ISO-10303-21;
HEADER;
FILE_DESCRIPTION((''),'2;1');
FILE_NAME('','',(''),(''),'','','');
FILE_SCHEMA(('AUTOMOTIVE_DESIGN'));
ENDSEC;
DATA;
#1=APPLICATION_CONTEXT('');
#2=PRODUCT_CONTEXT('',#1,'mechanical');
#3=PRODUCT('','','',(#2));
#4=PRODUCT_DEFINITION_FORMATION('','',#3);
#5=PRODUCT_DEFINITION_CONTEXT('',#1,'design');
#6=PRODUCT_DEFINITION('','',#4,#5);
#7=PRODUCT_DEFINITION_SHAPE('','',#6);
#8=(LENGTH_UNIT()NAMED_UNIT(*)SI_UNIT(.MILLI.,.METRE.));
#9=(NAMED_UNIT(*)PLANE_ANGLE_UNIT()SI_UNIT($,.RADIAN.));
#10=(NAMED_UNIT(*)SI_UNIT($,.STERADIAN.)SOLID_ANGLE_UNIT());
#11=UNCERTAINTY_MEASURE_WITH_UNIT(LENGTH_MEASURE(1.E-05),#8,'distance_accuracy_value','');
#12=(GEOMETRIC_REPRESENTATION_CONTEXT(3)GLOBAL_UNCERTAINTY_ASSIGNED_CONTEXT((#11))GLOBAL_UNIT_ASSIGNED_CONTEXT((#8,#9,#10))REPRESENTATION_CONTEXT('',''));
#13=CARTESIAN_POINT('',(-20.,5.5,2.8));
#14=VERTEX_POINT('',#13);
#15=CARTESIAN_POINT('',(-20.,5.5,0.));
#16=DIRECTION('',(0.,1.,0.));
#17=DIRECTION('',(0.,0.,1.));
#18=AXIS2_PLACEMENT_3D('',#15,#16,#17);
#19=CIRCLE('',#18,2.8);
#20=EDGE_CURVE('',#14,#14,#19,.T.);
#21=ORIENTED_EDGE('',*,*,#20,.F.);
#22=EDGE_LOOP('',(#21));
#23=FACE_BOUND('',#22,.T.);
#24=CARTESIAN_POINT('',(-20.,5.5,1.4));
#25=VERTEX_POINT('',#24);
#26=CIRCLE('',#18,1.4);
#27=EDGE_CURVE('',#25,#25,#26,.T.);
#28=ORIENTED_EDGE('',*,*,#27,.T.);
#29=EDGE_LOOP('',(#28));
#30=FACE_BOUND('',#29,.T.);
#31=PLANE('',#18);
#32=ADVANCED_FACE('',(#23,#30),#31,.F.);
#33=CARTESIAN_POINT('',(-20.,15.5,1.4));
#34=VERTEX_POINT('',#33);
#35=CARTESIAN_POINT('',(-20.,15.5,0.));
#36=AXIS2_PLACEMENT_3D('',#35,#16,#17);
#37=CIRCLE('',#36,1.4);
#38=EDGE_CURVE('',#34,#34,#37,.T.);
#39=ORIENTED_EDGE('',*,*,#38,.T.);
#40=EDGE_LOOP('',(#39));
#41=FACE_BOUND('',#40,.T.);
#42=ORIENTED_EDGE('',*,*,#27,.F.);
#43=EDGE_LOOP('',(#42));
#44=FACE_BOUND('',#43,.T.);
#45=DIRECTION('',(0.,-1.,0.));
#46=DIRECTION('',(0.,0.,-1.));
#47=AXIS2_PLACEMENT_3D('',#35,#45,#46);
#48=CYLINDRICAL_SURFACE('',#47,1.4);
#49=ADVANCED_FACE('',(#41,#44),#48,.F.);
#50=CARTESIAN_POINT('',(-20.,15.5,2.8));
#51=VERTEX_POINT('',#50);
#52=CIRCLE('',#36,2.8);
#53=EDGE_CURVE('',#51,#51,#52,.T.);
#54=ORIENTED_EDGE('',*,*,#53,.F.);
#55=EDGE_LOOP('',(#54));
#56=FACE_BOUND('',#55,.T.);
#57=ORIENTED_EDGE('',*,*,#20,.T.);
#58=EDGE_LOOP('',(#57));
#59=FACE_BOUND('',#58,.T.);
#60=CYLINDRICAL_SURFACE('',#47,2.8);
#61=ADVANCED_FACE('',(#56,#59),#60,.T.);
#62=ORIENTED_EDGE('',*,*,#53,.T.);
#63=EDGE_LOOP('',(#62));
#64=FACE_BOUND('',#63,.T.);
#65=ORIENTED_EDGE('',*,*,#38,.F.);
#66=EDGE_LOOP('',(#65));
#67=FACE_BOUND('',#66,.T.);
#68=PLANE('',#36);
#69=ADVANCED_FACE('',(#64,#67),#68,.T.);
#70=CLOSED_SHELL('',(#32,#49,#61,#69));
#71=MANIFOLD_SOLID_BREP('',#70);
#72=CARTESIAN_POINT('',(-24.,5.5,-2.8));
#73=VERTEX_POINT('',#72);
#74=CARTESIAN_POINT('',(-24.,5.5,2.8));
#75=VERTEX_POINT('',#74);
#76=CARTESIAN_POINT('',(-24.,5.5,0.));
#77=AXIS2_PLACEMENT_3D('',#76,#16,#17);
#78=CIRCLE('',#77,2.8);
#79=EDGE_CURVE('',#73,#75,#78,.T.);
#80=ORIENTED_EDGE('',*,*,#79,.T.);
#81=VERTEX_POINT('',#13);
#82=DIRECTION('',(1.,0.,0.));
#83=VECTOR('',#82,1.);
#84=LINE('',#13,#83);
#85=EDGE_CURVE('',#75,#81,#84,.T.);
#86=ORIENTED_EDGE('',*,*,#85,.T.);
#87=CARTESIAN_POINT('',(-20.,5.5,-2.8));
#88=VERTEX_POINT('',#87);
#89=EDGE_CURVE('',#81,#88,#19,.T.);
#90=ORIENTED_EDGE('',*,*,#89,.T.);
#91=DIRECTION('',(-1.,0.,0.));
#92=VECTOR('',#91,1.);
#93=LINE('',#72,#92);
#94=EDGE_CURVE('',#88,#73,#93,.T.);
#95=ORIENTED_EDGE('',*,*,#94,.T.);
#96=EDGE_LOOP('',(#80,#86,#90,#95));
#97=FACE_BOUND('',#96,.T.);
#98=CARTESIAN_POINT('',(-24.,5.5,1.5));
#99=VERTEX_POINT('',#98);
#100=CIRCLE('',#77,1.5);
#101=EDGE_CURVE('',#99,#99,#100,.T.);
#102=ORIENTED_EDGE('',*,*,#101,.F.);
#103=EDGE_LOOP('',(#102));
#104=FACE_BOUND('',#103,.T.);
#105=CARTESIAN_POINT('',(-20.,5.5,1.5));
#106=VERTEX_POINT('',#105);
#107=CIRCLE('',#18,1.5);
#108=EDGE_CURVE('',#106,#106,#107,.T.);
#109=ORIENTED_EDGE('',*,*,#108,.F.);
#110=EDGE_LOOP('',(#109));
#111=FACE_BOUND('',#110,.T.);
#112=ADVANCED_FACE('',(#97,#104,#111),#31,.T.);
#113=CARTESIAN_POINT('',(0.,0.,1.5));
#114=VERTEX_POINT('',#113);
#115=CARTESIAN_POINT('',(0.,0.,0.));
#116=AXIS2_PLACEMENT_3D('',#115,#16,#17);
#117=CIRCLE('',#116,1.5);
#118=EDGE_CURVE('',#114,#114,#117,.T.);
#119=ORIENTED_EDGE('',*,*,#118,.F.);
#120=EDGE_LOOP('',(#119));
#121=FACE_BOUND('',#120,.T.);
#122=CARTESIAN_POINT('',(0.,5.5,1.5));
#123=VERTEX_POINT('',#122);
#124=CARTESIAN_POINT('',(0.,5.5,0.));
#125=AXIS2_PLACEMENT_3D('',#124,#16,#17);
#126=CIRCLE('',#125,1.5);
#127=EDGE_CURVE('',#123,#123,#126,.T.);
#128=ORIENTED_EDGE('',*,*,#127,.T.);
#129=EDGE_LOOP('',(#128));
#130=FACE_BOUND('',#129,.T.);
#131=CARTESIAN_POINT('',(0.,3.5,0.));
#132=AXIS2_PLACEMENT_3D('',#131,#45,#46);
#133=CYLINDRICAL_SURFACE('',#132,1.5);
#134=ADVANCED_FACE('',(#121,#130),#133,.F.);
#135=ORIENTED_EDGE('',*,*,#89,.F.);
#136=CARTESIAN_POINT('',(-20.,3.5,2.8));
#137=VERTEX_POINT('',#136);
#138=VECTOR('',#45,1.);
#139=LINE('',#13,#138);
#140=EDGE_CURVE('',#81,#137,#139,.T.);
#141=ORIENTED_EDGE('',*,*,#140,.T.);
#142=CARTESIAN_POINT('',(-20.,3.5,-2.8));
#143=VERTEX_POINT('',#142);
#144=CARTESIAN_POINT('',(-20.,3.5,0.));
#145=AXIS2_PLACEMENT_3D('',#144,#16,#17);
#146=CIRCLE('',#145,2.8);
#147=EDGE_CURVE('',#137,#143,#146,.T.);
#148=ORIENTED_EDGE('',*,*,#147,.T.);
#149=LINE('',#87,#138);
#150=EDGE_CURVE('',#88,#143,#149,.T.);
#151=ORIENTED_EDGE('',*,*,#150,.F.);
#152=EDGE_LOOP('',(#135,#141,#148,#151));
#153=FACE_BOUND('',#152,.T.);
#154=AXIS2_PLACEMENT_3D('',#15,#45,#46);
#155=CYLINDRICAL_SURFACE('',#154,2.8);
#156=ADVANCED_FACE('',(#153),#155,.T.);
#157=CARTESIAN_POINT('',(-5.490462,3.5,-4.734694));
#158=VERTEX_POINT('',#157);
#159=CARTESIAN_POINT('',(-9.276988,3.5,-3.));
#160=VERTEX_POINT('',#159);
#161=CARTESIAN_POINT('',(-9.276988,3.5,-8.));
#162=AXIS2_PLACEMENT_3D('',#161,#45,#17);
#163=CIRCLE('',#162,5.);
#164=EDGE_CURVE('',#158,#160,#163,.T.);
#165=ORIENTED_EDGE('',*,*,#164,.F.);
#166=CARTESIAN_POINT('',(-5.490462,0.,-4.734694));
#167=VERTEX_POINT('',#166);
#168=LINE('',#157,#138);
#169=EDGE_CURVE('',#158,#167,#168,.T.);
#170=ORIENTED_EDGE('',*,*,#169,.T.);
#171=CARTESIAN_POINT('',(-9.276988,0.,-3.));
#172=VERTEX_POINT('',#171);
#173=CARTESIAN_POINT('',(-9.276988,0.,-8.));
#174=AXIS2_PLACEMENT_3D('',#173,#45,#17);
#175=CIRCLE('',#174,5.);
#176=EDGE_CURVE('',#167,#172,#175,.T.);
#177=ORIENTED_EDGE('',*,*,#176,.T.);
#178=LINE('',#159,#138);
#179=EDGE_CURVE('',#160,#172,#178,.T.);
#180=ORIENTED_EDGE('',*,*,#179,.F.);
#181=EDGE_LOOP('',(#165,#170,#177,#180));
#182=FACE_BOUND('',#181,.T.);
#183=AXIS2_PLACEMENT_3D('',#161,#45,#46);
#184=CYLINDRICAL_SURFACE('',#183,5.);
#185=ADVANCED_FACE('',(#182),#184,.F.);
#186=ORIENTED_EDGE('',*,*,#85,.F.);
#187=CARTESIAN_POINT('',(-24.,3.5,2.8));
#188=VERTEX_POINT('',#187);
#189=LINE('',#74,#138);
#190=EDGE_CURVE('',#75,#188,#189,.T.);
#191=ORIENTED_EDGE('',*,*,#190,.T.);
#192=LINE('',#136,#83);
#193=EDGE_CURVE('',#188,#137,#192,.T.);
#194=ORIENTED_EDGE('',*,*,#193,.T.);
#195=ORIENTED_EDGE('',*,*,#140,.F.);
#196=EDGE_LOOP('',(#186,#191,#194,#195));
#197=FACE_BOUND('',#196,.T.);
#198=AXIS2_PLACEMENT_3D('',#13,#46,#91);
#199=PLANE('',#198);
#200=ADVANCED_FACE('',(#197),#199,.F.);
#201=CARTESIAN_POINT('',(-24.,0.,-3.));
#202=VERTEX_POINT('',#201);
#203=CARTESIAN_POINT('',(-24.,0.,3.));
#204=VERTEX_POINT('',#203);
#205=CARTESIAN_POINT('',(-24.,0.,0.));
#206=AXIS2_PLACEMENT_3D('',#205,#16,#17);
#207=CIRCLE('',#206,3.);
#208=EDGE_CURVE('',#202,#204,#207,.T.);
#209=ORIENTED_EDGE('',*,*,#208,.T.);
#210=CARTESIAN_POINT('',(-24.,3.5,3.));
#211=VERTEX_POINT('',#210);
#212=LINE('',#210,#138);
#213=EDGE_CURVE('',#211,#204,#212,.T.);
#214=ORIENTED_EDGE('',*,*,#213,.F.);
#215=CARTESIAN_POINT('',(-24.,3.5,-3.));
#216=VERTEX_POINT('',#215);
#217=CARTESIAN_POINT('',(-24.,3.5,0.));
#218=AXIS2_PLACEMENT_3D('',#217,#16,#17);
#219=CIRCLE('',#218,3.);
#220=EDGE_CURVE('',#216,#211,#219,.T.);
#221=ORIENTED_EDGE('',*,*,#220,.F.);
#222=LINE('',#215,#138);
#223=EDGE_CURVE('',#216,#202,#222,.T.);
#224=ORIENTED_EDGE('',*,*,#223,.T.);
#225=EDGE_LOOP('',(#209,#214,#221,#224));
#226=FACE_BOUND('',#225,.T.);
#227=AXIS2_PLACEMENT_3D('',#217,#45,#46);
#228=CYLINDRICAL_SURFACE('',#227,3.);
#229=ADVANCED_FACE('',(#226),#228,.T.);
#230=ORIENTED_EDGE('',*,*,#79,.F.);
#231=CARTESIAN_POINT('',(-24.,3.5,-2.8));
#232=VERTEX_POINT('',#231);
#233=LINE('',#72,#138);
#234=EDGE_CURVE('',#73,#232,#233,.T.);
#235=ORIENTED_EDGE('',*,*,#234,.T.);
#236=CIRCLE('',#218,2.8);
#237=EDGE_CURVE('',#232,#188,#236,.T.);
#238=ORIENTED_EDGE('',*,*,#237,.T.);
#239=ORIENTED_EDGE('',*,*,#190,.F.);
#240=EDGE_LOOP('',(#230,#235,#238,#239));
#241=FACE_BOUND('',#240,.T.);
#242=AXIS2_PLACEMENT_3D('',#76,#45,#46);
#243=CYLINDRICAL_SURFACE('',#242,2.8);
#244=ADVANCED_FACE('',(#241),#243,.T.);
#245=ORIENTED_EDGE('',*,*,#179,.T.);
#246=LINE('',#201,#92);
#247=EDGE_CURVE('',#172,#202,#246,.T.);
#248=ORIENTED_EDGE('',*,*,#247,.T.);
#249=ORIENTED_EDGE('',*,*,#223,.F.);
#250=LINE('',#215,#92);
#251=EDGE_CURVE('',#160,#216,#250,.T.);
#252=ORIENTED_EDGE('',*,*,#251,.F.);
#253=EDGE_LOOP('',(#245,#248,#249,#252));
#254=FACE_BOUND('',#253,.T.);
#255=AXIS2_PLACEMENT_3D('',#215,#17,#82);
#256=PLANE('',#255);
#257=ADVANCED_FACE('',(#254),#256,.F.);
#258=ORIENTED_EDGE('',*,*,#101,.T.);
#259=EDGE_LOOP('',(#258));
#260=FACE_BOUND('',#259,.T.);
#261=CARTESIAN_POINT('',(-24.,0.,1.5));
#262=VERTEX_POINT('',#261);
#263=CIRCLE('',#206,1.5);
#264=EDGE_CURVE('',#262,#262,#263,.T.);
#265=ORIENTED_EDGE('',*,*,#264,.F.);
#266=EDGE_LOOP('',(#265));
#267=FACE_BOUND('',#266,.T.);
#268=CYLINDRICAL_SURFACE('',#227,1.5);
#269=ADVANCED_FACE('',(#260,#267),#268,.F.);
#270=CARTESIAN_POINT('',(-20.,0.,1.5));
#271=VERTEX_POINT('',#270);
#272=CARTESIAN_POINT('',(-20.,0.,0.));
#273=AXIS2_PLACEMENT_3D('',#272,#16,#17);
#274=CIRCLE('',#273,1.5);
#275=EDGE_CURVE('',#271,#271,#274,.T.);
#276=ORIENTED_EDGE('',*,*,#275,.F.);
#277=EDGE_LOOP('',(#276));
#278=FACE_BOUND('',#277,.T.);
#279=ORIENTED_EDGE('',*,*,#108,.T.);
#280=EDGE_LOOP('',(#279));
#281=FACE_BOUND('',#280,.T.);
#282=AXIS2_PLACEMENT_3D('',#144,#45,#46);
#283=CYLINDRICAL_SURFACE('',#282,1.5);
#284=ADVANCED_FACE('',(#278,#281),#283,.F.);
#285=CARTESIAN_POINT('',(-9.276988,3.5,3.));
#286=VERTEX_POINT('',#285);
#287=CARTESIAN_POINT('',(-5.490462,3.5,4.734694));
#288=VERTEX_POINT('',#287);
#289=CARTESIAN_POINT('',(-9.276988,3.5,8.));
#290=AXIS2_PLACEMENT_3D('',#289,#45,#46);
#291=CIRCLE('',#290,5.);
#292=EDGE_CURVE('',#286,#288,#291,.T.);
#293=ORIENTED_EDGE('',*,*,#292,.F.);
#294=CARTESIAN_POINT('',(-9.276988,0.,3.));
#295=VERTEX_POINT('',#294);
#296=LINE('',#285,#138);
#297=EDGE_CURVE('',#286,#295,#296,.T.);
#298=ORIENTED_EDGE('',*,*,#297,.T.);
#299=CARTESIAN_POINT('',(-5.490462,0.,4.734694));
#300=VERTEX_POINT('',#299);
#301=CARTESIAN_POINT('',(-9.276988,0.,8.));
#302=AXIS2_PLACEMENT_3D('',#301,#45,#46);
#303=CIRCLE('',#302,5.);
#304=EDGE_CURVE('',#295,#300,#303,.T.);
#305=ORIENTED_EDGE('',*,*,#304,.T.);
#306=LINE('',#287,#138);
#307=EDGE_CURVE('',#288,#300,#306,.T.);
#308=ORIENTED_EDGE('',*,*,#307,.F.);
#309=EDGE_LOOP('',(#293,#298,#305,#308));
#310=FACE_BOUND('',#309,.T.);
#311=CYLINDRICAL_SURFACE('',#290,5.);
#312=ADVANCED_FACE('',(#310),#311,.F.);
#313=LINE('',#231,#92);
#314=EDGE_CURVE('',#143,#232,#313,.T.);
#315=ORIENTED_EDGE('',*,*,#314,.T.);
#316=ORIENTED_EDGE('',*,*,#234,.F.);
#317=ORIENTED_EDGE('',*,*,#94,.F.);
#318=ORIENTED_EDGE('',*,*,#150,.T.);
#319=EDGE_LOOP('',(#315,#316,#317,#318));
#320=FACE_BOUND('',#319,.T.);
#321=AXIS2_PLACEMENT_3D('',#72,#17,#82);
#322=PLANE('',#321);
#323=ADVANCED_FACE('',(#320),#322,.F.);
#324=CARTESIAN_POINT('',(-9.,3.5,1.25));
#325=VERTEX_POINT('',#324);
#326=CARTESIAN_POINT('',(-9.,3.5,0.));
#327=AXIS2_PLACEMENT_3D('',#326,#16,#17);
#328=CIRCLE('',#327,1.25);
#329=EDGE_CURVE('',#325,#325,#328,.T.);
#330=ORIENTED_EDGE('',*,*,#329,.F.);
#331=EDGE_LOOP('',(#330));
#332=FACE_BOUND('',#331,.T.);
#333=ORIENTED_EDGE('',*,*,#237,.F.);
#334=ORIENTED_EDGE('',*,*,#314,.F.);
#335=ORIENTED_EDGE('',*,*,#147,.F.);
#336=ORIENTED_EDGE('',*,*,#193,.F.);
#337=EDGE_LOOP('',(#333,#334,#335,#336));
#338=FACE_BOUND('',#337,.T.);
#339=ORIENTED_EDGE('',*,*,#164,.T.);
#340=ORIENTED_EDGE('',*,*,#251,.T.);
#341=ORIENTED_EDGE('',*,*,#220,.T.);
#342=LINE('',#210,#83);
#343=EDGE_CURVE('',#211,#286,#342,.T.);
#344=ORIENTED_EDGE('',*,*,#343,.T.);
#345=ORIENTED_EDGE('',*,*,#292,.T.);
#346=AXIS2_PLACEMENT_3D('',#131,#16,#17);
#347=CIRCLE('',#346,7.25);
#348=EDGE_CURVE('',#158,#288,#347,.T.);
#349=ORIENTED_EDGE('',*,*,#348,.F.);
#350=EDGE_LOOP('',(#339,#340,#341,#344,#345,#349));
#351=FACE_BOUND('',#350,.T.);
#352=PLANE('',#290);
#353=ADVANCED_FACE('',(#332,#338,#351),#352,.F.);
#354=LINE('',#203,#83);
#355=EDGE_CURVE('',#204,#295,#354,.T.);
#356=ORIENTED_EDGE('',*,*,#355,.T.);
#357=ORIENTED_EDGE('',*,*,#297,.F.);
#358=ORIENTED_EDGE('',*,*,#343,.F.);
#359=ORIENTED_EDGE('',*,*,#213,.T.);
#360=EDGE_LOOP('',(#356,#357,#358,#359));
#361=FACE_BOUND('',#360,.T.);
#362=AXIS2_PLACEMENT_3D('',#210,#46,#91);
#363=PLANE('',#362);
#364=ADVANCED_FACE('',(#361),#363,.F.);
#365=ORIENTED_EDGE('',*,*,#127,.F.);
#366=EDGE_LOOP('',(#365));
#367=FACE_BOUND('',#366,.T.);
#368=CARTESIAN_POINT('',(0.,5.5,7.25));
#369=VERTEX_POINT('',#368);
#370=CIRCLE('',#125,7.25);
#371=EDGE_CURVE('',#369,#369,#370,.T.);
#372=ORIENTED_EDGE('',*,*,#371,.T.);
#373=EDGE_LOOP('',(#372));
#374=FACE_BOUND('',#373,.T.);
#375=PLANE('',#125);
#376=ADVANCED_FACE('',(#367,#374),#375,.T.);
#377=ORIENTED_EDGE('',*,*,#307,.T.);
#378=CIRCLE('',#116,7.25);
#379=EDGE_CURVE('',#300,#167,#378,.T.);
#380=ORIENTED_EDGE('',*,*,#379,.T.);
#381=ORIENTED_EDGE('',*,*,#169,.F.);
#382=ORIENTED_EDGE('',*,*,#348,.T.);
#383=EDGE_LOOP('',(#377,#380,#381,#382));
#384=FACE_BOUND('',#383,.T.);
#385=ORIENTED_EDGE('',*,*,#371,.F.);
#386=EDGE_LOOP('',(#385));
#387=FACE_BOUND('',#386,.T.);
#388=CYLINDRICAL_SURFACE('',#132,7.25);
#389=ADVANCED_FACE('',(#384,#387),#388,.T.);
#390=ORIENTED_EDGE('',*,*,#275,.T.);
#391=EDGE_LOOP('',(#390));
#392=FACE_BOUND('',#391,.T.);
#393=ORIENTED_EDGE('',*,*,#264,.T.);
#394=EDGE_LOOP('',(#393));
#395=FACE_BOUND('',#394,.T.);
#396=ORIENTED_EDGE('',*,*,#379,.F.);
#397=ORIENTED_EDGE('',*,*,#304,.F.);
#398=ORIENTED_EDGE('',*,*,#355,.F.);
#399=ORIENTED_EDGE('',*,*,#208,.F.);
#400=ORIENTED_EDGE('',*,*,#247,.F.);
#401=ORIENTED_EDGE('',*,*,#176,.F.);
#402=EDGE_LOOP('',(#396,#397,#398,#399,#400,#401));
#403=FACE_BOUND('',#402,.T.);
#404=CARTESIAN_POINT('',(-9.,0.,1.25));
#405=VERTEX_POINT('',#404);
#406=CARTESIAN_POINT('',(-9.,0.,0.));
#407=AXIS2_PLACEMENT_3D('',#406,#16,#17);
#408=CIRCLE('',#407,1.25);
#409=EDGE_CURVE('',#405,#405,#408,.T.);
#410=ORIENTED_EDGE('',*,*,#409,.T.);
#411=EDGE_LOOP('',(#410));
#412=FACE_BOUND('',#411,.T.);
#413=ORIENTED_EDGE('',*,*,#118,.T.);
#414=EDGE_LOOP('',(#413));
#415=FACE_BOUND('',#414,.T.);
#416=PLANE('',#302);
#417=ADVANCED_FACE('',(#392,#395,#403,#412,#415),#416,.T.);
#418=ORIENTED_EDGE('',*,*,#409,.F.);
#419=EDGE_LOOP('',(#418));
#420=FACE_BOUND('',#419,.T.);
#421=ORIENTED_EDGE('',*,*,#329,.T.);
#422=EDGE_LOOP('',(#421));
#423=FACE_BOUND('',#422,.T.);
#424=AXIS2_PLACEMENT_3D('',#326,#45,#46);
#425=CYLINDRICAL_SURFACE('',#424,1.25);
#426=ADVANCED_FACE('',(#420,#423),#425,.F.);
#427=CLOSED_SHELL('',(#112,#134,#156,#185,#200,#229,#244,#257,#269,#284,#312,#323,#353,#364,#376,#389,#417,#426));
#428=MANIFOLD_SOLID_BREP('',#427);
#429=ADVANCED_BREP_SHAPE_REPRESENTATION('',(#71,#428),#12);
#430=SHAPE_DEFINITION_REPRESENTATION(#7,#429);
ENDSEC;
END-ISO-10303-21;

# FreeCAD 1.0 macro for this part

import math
import FreeCAD as App
import Part
import Sketcher

V = App.Vector

doc = App.newDocument("Part")
params = doc.addObject("Spreadsheet::Sheet", "Params")
for row, (alias, value) in enumerate([
    ("sketch1_diameter", "3 mm"),
    ("sketch1_radius", "5 mm"),
    ("sketch1_radius2", "3 mm"),
    ("sketch1_diameter2", "2.5 mm"),
    ("sketch1_radius3", "7.25 mm"),
    ("pad1_length", "3.5 mm"),
    ("sketch2_diameter", "3 mm"),
    ("sketch2_diameter2", "14.5 mm"),
    ("sketch2_radius", "2.8 mm"),
    ("sketch2_width", "4 mm"),
    ("pad2_length", "2 mm"),
    ("sketch3_diameter", "5.6 mm"),
    ("sketch3_diameter2", "2.8 mm"),
    ("pad3_length", "10 mm"),
], start=1):
    params.set(f"A{row}", alias)
    params.set(f"B{row}", "=" + value)
    params.setAlias(f"B{row}", alias)

body = doc.addObject("PartDesign::Body", "Body")

# Sketch on XZ plane
sketch1 = body.newObject("Sketcher::SketchObject", "Sketch")
sketch1.AttachmentSupport = (doc.getObject("XZ_Plane"), [""])
sketch1.MapMode = "FlatFace"
sketch1.addGeometry([
    Part.LineSegment(V(-24, 3, 0), V(-9.3, 3, 0)),  # 0
    Part.ArcOfCircle(Part.Circle(V(-9.3, 8, 0), V(0, 0, 1), 5), math.radians(-90), math.radians(-41)),  # 1
    Part.ArcOfCircle(Part.Circle(V(0, 0, 0), V(0, 0, 1), 7.2), math.radians(-139), math.radians(139)),  # 2
    Part.ArcOfCircle(Part.Circle(V(-9.3, -8, 0), V(0, 0, 1), 5), math.radians(41), math.radians(90)),  # 3
    Part.LineSegment(V(-9.3, -3, 0), V(-24, -3, 0)),  # 4
    Part.ArcOfCircle(Part.Circle(V(-24, 0, 0), V(0, 0, 1), 3), math.radians(90), math.radians(270)),  # 5
    Part.Circle(V(-24, 0, 0), V(0, 0, 1), 1.5),  # 6
    Part.Circle(V(-20, 0, 0), V(0, 0, 1), 1.5),  # 7
    Part.Circle(V(-9, 0, 0), V(0, 0, 1), 1.2),  # 8
    Part.Circle(V(0, 0, 0), V(0, 0, 1), 1.5),  # 9
], False)
sketch1.addConstraint([
    Sketcher.Constraint("Tangent", 0, 2, 1, 1),
    Sketcher.Constraint("Tangent", 1, 2, 2, 2),
    Sketcher.Constraint("Tangent", 2, 1, 3, 1),
    Sketcher.Constraint("Tangent", 3, 2, 4, 1),
    Sketcher.Constraint("Tangent", 4, 2, 5, 2),
    Sketcher.Constraint("Tangent", 5, 1, 0, 1),
    Sketcher.Constraint("Horizontal", 0),
    Sketcher.Constraint("Horizontal", 4),
    Sketcher.Constraint("Coincident", 2, 3, -1, 1),
    Sketcher.Constraint("Coincident", 9, 3, -1, 1),
    Sketcher.Constraint("Coincident", 6, 3, 5, 3),
    Sketcher.Constraint("Equal", 1, 3),
    Sketcher.Constraint("Equal", 6, 7),
    Sketcher.Constraint("Equal", 7, 9),
    Sketcher.Constraint("PointOnObject", 5, 3, -1),
    Sketcher.Constraint("PointOnObject", 7, 3, -1),
    Sketcher.Constraint("PointOnObject", 8, 3, -1),
    Sketcher.Constraint("Diameter", 6, 3.0),
    Sketcher.Constraint("Radius", 1, 5.0),
    Sketcher.Constraint("Radius", 5, 3.0),
    Sketcher.Constraint("Diameter", 8, 2.5),
    Sketcher.Constraint("Radius", 2, 7.25),
    Sketcher.Constraint("DistanceX", 5, 3, -1, 1, 24.0),
    Sketcher.Constraint("DistanceX", 7, 3, -1, 1, 20.0),
    Sketcher.Constraint("DistanceX", 8, 3, -1, 1, 9.0),
])
sketch1.setExpression("Constraints[17]", "Params.sketch1_diameter")
sketch1.setExpression("Constraints[18]", "Params.sketch1_radius")
sketch1.setExpression("Constraints[19]", "Params.sketch1_radius2")
sketch1.setExpression("Constraints[20]", "Params.sketch1_diameter2")
sketch1.setExpression("Constraints[21]", "Params.sketch1_radius3")
pad1 = body.newObject("PartDesign::Pad", "Pad")
pad1.Profile = sketch1
pad1.setExpression("Length", "Params.pad1_length")
pad1.Reversed = True

# Sketch on XZ plane
sketch2 = body.newObject("Sketcher::SketchObject", "Sketch001")
sketch2.AttachmentSupport = (doc.getObject("XZ_Plane"), [""])
sketch2.MapMode = "FlatFace"
sketch2.AttachmentOffset = App.Placement(V(0, 0, -3.5), App.Rotation())
sketch2.addGeometry([
    Part.Circle(V(0, 0, 0), V(0, 0, 1), 7.2),  # 0
    Part.Circle(V(0, 0, 0), V(0, 0, 1), 1.5),  # 1
    Part.LineSegment(V(-20, -2.8, 0), V(-24, -2.8, 0)),  # 2
    Part.ArcOfCircle(Part.Circle(V(-24, 0, 0), V(0, 0, 1), 2.8), math.radians(90), math.radians(270)),  # 3
    Part.LineSegment(V(-24, 2.8, 0), V(-20, 2.8, 0)),  # 4
    Part.ArcOfCircle(Part.Circle(V(-20, 0, 0), V(0, 0, 1), 2.8), math.radians(-90), math.radians(90)),  # 5
    Part.Circle(V(-20, 0, 0), V(0, 0, 1), 1.5),  # 6
    Part.Circle(V(-24, 0, 0), V(0, 0, 1), 1.5),  # 7
], False)
sketch2.addConstraint([
    Sketcher.Constraint("Tangent", 2, 2, 3, 2),
    Sketcher.Constraint("Tangent", 3, 1, 4, 1),
    Sketcher.Constraint("Tangent", 4, 2, 5, 2),
    Sketcher.Constraint("Tangent", 5, 1, 2, 1),
    Sketcher.Constraint("Horizontal", 2),
    Sketcher.Constraint("Horizontal", 4),
    Sketcher.Constraint("Coincident", 0, 3, -1, 1),
    Sketcher.Constraint("Coincident", 1, 3, -1, 1),
    Sketcher.Constraint("Coincident", 6, 3, 5, 3),
    Sketcher.Constraint("Coincident", 7, 3, 3, 3),
    Sketcher.Constraint("Equal", 1, 6),
    Sketcher.Constraint("Equal", 6, 7),
    Sketcher.Constraint("PointOnObject", 3, 3, -1),
    Sketcher.Constraint("Diameter", 1, 3.0),
    Sketcher.Constraint("Diameter", 0, 14.5),
    Sketcher.Constraint("Radius", 3, 2.8),
    Sketcher.Constraint("DistanceX", 2, 2, 2, 1, 4.0),
    Sketcher.Constraint("DistanceX", 3, 3, -1, 1, 24.0),
])
sketch2.setExpression("Constraints[13]", "Params.sketch2_diameter")
sketch2.setExpression("Constraints[14]", "Params.sketch2_diameter2")
sketch2.setExpression("Constraints[15]", "Params.sketch2_radius")
sketch2.setExpression("Constraints[16]", "Params.sketch2_width")
pad2 = body.newObject("PartDesign::Pad", "Pad001")
pad2.Profile = sketch2
pad2.setExpression("Length", "Params.pad2_length")
pad2.Reversed = True
body2 = doc.addObject("PartDesign::Body", "Body001")

# Sketch on XZ plane
sketch3 = body2.newObject("Sketcher::SketchObject", "Sketch002")
sketch3.AttachmentSupport = (doc.getObject("XZ_Plane001"), [""])
sketch3.MapMode = "FlatFace"
sketch3.AttachmentOffset = App.Placement(V(0, 0, -5.5), App.Rotation())
sketch3.addGeometry([
    Part.Circle(V(-20, 0, 0), V(0, 0, 1), 2.8),
    Part.Circle(V(-20, 0, 0), V(0, 0, 1), 1.4),
], False)
sketch3.addConstraint([
    Sketcher.Constraint("Coincident", 1, 3, 0, 3),
    Sketcher.Constraint("PointOnObject", 0, 3, -1),
    Sketcher.Constraint("Diameter", 0, 5.6),
    Sketcher.Constraint("Diameter", 1, 2.8),
    Sketcher.Constraint("DistanceX", 0, 3, -1, 1, 20.0),
])
sketch3.setExpression("Constraints[2]", "Params.sketch3_diameter")
sketch3.setExpression("Constraints[3]", "Params.sketch3_diameter2")
pad3 = body2.newObject("PartDesign::Pad", "Pad002")
pad3.Profile = sketch3
pad3.setExpression("Length", "Params.pad3_length")
pad3.Reversed = True

doc.recompute()
